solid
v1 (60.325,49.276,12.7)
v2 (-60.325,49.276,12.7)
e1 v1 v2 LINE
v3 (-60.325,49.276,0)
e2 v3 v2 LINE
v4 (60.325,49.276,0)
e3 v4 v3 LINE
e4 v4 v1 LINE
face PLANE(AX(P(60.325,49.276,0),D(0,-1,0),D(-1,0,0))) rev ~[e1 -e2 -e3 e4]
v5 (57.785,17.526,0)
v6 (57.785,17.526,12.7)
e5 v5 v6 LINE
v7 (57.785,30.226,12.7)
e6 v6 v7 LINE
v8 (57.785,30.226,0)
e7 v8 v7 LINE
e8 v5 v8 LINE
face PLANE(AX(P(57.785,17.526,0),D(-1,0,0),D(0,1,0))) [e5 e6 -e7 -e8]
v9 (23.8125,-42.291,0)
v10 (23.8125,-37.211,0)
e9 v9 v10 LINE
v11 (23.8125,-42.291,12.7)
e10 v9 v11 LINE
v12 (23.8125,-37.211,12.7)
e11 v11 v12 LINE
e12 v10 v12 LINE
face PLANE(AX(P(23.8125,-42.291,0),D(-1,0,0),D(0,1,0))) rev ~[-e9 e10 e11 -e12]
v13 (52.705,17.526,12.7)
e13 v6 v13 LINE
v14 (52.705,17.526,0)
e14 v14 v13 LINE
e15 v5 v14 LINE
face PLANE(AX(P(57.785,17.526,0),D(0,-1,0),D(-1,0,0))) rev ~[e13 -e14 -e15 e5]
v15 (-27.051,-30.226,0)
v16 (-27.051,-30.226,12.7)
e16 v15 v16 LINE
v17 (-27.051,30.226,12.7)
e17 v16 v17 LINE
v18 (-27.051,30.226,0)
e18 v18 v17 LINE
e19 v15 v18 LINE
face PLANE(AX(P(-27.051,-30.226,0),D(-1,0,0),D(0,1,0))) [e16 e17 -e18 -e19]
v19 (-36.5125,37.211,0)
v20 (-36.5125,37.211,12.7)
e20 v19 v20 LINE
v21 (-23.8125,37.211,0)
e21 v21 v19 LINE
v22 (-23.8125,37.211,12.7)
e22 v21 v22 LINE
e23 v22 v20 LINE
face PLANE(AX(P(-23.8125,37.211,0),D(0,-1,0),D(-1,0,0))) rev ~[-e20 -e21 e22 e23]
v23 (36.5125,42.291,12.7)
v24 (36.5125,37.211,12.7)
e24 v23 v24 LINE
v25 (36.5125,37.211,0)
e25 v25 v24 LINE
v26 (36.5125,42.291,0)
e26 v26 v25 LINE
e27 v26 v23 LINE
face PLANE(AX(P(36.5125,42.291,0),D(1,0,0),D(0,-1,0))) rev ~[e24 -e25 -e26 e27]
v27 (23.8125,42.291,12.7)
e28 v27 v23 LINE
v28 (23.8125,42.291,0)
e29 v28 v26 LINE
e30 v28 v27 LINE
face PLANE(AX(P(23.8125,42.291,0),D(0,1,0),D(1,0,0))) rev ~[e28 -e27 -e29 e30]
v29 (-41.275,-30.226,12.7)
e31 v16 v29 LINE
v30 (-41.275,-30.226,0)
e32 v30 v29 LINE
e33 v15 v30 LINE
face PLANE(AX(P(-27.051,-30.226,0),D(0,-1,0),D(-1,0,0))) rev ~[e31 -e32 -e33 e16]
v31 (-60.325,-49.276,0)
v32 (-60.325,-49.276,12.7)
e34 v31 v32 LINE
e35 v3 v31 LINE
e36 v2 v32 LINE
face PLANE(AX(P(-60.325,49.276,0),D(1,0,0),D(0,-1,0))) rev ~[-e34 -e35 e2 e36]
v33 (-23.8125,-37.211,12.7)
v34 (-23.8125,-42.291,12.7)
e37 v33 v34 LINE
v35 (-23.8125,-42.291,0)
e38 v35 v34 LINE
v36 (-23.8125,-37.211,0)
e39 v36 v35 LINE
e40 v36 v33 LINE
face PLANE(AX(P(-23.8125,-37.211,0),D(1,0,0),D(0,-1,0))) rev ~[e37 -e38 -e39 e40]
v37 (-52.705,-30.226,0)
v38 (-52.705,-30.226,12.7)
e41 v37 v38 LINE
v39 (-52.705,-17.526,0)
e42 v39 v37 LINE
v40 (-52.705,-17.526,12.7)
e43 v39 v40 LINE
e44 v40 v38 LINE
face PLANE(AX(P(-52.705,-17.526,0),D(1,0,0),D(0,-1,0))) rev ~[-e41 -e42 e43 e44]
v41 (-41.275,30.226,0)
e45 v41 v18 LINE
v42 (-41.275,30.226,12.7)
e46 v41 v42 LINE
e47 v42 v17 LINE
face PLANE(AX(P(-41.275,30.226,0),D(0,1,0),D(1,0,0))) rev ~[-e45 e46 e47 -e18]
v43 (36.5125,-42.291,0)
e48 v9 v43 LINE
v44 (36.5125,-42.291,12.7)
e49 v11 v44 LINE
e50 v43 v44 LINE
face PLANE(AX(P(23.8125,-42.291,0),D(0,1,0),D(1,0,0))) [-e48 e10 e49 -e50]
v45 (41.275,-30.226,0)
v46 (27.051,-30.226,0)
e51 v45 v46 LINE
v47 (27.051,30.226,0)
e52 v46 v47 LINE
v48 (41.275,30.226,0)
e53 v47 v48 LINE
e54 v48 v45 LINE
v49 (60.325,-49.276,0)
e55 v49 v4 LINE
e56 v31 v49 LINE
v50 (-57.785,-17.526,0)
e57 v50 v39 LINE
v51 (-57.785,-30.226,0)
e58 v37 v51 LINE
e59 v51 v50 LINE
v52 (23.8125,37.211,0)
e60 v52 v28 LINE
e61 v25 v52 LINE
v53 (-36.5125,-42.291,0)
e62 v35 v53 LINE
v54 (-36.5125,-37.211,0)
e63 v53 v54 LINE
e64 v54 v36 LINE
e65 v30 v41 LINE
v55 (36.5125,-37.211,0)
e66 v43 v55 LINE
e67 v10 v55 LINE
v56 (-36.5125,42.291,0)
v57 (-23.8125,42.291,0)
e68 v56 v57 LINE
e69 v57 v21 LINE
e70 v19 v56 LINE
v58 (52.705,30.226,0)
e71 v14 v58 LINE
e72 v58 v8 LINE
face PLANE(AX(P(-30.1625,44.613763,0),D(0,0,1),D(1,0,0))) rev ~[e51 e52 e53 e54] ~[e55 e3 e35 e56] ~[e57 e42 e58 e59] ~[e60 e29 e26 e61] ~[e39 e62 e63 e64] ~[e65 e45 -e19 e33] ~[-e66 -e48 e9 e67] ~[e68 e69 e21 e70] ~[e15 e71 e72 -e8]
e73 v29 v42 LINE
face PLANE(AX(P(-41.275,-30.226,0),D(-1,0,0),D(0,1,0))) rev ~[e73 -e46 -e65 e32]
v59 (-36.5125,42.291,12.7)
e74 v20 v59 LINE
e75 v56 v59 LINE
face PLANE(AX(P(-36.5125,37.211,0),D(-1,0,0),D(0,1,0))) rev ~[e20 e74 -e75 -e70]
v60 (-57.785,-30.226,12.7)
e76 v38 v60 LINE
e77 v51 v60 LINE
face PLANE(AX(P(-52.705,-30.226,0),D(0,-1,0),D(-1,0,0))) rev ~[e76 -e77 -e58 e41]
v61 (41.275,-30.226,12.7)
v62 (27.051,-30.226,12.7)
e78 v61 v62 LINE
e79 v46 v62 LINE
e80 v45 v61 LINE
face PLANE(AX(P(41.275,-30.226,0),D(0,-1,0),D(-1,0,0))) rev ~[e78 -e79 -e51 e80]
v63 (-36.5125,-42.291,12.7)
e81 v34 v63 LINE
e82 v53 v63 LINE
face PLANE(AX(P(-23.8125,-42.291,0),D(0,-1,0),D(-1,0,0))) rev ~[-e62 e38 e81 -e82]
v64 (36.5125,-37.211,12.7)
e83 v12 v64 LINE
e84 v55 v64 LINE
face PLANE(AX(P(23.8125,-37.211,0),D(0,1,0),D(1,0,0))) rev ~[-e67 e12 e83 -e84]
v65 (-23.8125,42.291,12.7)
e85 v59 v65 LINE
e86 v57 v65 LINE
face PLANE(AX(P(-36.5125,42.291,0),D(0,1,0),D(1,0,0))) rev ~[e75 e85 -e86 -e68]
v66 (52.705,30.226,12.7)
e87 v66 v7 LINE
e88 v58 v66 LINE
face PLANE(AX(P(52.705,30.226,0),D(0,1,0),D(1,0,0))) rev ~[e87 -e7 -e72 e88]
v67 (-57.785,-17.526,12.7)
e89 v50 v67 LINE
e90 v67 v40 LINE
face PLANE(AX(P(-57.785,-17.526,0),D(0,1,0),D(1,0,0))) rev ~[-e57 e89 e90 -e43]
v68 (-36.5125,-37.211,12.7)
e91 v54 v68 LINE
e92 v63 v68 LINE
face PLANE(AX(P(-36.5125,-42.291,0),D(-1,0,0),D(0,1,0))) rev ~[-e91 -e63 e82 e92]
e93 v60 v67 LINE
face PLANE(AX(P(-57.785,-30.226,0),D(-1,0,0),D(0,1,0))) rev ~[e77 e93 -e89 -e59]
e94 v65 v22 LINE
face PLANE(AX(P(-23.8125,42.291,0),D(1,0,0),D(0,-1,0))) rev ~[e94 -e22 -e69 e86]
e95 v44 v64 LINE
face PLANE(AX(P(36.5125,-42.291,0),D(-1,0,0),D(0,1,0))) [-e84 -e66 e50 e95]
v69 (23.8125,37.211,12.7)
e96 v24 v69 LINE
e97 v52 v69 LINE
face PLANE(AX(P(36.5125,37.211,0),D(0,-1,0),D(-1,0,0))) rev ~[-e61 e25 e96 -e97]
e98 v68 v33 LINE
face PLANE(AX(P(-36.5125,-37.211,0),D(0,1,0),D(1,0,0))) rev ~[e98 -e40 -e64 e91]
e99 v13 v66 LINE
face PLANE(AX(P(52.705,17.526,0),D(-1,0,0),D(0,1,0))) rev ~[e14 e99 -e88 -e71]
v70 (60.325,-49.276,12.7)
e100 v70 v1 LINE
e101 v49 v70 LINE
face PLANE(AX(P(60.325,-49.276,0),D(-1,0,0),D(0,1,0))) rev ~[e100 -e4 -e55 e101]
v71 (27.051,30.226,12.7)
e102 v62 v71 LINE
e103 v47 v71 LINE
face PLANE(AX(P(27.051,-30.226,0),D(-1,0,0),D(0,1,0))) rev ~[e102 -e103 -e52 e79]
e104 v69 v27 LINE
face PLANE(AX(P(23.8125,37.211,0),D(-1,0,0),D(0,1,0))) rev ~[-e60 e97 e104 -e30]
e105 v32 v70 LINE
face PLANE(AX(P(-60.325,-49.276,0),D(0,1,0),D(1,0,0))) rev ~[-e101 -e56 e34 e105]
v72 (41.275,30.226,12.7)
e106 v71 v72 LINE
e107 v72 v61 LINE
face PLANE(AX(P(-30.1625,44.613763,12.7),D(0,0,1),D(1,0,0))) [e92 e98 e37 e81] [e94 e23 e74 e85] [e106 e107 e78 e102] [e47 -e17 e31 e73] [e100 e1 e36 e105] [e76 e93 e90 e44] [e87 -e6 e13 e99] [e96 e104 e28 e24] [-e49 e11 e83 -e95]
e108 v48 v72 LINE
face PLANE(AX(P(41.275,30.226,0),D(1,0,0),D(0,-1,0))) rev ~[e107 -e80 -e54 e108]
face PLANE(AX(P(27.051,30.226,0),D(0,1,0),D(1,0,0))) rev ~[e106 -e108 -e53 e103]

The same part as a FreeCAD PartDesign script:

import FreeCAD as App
import Part
import Sketcher

V = App.Vector
Q = App.Units.Quantity


def add_polygon(sketch, points):
    """Adds a closed chain of lines whose ends are joined by coincident constraints."""
    first, n = sketch.GeometryCount, len(points)
    for a, b in zip(points, points[1:] + points[:1]):
        sketch.addGeometry(Part.LineSegment(App.Vector(*a, 0), App.Vector(*b, 0)), False)
    for i in range(n):
        sketch.addConstraint(Sketcher.Constraint("Coincident", first + i, 2, first + (i + 1) % n, 1))

doc = App.newDocument("Part")
body = doc.addObject("PartDesign::Body", "Body")

# Sketch on XY plane
sketch1 = body.newObject("Sketcher::SketchObject", "Sketch")
sketch1.AttachmentSupport = (doc.getObject("XY_Plane"), [""])
sketch1.MapMode = "FlatFace"
add_polygon(sketch1, [(60.325, 49.276), (-60.325, 49.276), (-60.325, -49.276), (60.325, -49.276)])  # lines 0-3
add_polygon(sketch1, [(-57.785, -17.526), (-52.705, -17.526), (-52.705, -30.226), (-57.785, -30.226)])  # lines 4-7
add_polygon(sketch1, [(52.705, 30.226), (57.785, 30.226), (57.785, 17.526), (52.705, 17.526)])  # lines 8-11
add_polygon(sketch1, [(-36.5125, -37.211), (-23.8125, -37.211), (-23.8125, -42.291), (-36.5125, -42.291)])  # lines 12-15
add_polygon(sketch1, [(36.5125, -42.291), (23.8125, -42.291), (23.8125, -37.211), (36.5125, -37.211)])  # lines 16-19
add_polygon(sketch1, [(-27.051, 30.226), (-27.051, -30.226), (-41.275, -30.226), (-41.275, 30.226)])  # lines 20-23
add_polygon(sketch1, [(-23.8125, 42.291), (-23.8125, 37.211), (-36.5125, 37.211), (-36.5125, 42.291)])  # lines 24-27
add_polygon(sketch1, [(27.051, 30.226), (41.275, 30.226), (41.275, -30.226), (27.051, -30.226)])  # lines 28-31
add_polygon(sketch1, [(36.5125, 42.291), (36.5125, 37.211), (23.8125, 37.211), (23.8125, 42.291)])  # lines 32-35
sketch1.addConstraint(Sketcher.Constraint("Horizontal", 0))
sketch1.addConstraint(Sketcher.Constraint("Vertical", 1))
sketch1.addConstraint(Sketcher.Constraint("Horizontal", 2))
sketch1.addConstraint(Sketcher.Constraint("Vertical", 3))
sketch1.addConstraint(Sketcher.Constraint("Horizontal", 4))
sketch1.addConstraint(Sketcher.Constraint("Vertical", 5))
sketch1.addConstraint(Sketcher.Constraint("Horizontal", 6))
sketch1.addConstraint(Sketcher.Constraint("Vertical", 7))
sketch1.addConstraint(Sketcher.Constraint("Horizontal", 8))
sketch1.addConstraint(Sketcher.Constraint("Vertical", 9))
sketch1.addConstraint(Sketcher.Constraint("Horizontal", 10))
sketch1.addConstraint(Sketcher.Constraint("Vertical", 11))
sketch1.addConstraint(Sketcher.Constraint("Horizontal", 12))
sketch1.addConstraint(Sketcher.Constraint("Vertical", 13))
sketch1.addConstraint(Sketcher.Constraint("Horizontal", 14))
sketch1.addConstraint(Sketcher.Constraint("Vertical", 15))
sketch1.addConstraint(Sketcher.Constraint("Horizontal", 16))
sketch1.addConstraint(Sketcher.Constraint("Vertical", 17))
sketch1.addConstraint(Sketcher.Constraint("Horizontal", 18))
sketch1.addConstraint(Sketcher.Constraint("Vertical", 19))
sketch1.addConstraint(Sketcher.Constraint("Vertical", 20))
sketch1.addConstraint(Sketcher.Constraint("Horizontal", 21))
sketch1.addConstraint(Sketcher.Constraint("Vertical", 22))
sketch1.addConstraint(Sketcher.Constraint("Horizontal", 23))
sketch1.addConstraint(Sketcher.Constraint("Vertical", 24))
sketch1.addConstraint(Sketcher.Constraint("Horizontal", 25))
sketch1.addConstraint(Sketcher.Constraint("Vertical", 26))
sketch1.addConstraint(Sketcher.Constraint("Horizontal", 27))
sketch1.addConstraint(Sketcher.Constraint("Horizontal", 28))
sketch1.addConstraint(Sketcher.Constraint("Vertical", 29))
sketch1.addConstraint(Sketcher.Constraint("Horizontal", 30))
sketch1.addConstraint(Sketcher.Constraint("Vertical", 31))
sketch1.addConstraint(Sketcher.Constraint("Vertical", 32))
sketch1.addConstraint(Sketcher.Constraint("Horizontal", 33))
sketch1.addConstraint(Sketcher.Constraint("Vertical", 34))
sketch1.addConstraint(Sketcher.Constraint("Horizontal", 35))
sketch1.addConstraint(Sketcher.Constraint("Symmetric", 0, 2, 2, 2, -1, 1))
sketch1.addConstraint(Sketcher.Constraint("Symmetric", 6, 2, 8, 2, -1, 1))
sketch1.addConstraint(Sketcher.Constraint("Symmetric", 4, 2, 10, 2, -1, 1))
sketch1.addConstraint(Sketcher.Constraint("Symmetric", 17, 2, 24, 2, -1, 1))
sketch1.addConstraint(Sketcher.Constraint("Symmetric", 19, 2, 26, 2, -1, 1))
sketch1.addConstraint(Sketcher.Constraint("Symmetric", 21, 2, 28, 2, -1, 1))
sketch1.addConstraint(Sketcher.Constraint("Symmetric", 23, 2, 30, 2, -1, 1))
sketch1.addConstraint(Sketcher.Constraint("Symmetric", 15, 2, 32, 2, -1, 1))
sketch1.addConstraint(Sketcher.Constraint("Symmetric", 13, 2, 34, 2, -1, 1))
sketch1.addConstraint(Sketcher.Constraint("Symmetric", 13, 2, 16, 2, -2))
sketch1.addConstraint(Sketcher.Constraint("Symmetric", 15, 2, 18, 2, -2))
sketch1.addConstraint(Sketcher.Constraint("Horizontal", 6, 2, 20, 2))
sketch1.addConstraint(Sketcher.Constraint("Horizontal", 11, 2, 22, 2))
sketch1.addConstraint(Sketcher.Constraint("Equal", 35, 5))
sketch1.addConstraint(Sketcher.Constraint("Equal", 10, 13))
sketch1.addConstraint(Sketcher.Constraint("DistanceX", 4, 1, 4, 2, Q("0.2 in")))
sketch1.addConstraint(Sketcher.Constraint("DistanceX", 12, 1, 12, 2, Q("0.5 in")))
sketch1.addConstraint(Sketcher.Constraint("DistanceX", 0, 2, 0, 1, Q("4.75 in")))
sketch1.addConstraint(Sketcher.Constraint("DistanceX", 21, 2, 21, 1, Q("0.56 in")))
sketch1.addConstraint(Sketcher.Constraint("DistanceY", 1, 2, 1, 1, Q("3.88 in")))
sketch1.addConstraint(Sketcher.Constraint("DistanceY", 20, 2, 20, 1, Q("2.38 in")))
sketch1.addConstraint(Sketcher.Constraint("DistanceX", 1, 2, 4, 2, Q("0.3 in")))
sketch1.addConstraint(Sketcher.Constraint("DistanceX", 5, 2, 20, 2, Q("1.01 in")))
sketch1.addConstraint(Sketcher.Constraint("DistanceX", 12, 2, -1, 1, Q("0.9375 in")))
sketch1.addConstraint(Sketcher.Constraint("DistanceY", 12, 2, -1, 1, Q("1.465 in")))
pad1 = body.newObject("PartDesign::Pad", "Pad")
pad1.Profile = sketch1
pad1.Length = Q("0.5 in")

doc.recompute()
